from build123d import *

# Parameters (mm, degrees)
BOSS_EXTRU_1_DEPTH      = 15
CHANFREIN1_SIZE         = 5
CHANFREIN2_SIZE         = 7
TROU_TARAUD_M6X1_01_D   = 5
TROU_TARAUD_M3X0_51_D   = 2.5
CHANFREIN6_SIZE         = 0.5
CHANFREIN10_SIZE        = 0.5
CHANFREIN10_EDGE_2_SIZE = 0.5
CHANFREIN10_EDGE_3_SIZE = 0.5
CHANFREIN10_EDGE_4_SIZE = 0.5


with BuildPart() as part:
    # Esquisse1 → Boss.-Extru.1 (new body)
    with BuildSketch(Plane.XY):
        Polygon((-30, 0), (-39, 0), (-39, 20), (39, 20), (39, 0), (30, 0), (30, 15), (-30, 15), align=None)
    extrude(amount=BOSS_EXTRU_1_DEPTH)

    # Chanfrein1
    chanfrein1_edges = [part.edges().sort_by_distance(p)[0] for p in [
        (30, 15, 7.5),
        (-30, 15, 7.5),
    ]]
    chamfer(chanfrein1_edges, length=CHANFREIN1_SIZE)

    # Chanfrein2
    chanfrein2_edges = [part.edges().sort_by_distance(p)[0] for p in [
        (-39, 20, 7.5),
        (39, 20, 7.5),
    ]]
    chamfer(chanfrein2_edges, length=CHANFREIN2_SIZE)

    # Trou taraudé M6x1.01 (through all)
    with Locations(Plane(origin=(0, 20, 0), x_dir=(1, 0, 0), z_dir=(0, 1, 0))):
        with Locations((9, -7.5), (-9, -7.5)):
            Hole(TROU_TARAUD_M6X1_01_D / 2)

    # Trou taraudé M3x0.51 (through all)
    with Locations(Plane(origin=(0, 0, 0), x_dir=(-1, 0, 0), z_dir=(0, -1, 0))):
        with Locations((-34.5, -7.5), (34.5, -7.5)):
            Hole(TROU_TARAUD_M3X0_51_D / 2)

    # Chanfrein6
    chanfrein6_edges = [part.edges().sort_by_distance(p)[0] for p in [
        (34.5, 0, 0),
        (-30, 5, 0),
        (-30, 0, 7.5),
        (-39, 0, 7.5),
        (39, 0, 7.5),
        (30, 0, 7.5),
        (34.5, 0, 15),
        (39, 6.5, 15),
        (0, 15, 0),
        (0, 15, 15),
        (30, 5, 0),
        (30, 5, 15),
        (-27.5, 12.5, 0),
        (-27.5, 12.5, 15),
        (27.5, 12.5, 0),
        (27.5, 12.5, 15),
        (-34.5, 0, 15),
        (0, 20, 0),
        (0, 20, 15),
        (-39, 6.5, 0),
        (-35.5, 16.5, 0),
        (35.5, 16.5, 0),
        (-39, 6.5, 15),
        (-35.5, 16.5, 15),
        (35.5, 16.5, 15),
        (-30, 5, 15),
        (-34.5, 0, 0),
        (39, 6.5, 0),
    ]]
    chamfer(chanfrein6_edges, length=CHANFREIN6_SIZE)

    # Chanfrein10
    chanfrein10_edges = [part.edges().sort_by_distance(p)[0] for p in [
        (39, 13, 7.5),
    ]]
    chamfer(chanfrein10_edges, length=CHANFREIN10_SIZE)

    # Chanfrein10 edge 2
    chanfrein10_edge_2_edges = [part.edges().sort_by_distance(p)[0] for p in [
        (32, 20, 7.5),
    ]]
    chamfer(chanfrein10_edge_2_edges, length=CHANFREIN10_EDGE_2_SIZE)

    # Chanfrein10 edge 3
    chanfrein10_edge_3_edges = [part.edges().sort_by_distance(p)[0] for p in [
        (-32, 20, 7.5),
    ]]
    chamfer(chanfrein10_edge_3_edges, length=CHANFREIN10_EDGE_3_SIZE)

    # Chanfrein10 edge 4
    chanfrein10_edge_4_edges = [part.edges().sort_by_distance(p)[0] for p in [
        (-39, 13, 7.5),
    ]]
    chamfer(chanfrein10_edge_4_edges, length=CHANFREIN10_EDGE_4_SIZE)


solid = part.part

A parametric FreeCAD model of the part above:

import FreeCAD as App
import Part
import Sketcher
from FreeCAD import Vector
Q = App.Units.Quantity


def edges_at(feature, points):
    """Names of the edges that pass closest to the given points."""
    edges = feature.Shape.Edges
    near = lambda p: min(range(len(edges)), key=lambda i: edges[i].distToShape(Part.Vertex(*p))[0])
    return sorted({f"Edge{near(p) + 1}" for p in points})


def add_polygon(sketch, points):
    """Adds a closed chain of lines whose ends are joined by coincident constraints."""
    first, n = sketch.GeometryCount, len(points)
    for a, b in zip(points, points[1:] + points[:1]):
        sketch.addGeometry(Part.LineSegment(App.Vector(*a, 0), App.Vector(*b, 0)), False)
    for i in range(n):
        sketch.addConstraint(Sketcher.Constraint("Coincident", first + i, 2, first + (i + 1) % n, 1))

doc = App.newDocument("Part")
body = doc.addObject("PartDesign::Body", "Body")

# Sketch on XY plane
sketch1 = doc.addObject("Sketcher::SketchObject", "Sketch")
body.addObject(sketch1)
sketch1.AttachmentSupport = (doc.XY_Plane, [""])
sketch1.MapMode = "FlatFace"
add_polygon(sketch1, [(-39, 0), (-30, 0), (-30, 15), (30, 15), (30, 0), (39, 0), (39, 20), (-39, 20)])  # lines 0-7
sketch1.addConstraint([
    Sketcher.Constraint("Horizontal", 0),
    Sketcher.Constraint("Vertical", 1),
    Sketcher.Constraint("Horizontal", 2),
    Sketcher.Constraint("Vertical", 3),
    Sketcher.Constraint("Horizontal", 4),
    Sketcher.Constraint("Vertical", 5),
    Sketcher.Constraint("Horizontal", 6),
    Sketcher.Constraint("Vertical", 7),
    Sketcher.Constraint("Symmetric", 0, 2, 3, 2, -1, 1),
    Sketcher.Constraint("Symmetric", 4, 2, 7, 2, -2),
    Sketcher.Constraint("DistanceX", 0, 1, 0, 2, Q("9 mm")),
    Sketcher.Constraint("DistanceX", 2, 1, 2, 2, Q("60 mm")),
    Sketcher.Constraint("DistanceY", 1, 1, 1, 2, Q("15 mm")),
    Sketcher.Constraint("DistanceY", 5, 1, 5, 2, Q("20 mm")),
])
pad1 = doc.addObject("PartDesign::Pad", "Pad")
body.addObject(pad1)
pad1.Profile = sketch1
pad1.Length = 15
doc.recompute()

chamfer = doc.addObject("PartDesign::Chamfer", "Chamfer")
body.addObject(chamfer)
chamfer.Base = (pad1, edges_at(pad1, [(30, 15, 7.5), (-30, 15, 7.5)]))
chamfer.Size = 5
doc.recompute()

chamfer2 = doc.addObject("PartDesign::Chamfer", "Chamfer001")
body.addObject(chamfer2)
chamfer2.Base = (chamfer, edges_at(chamfer, [(-39, 20, 7.5), (39, 20, 7.5)]))
chamfer2.Size = 7

# Sketch on XZ plane
sketch2 = doc.addObject("Sketcher::SketchObject", "Sketch001")
body.addObject(sketch2)
sketch2.AttachmentSupport = (doc.XZ_Plane, [""])
sketch2.MapMode = "FlatFace"
sketch2.AttachmentOffset = App.Placement(Vector(0, 0, -20), App.Rotation())
sketch2.addGeometry([
    Part.Circle(Vector(9, 7.5, 0), Vector(0, 0, 1), 2.5),
    Part.Circle(Vector(-9, 7.5, 0), Vector(0, 0, 1), 2.5),
], False)
sketch2.addConstraint([
    Sketcher.Constraint("Equal", 0, 1),
    Sketcher.Constraint("Symmetric", 0, 3, 1, 3, -2),
    Sketcher.Constraint("Diameter", 0, Q("5 mm")),
    Sketcher.Constraint("DistanceX", -1, 1, 0, 3, Q("9 mm")),
    Sketcher.Constraint("DistanceY", -1, 1, 0, 3, Q("7.5 mm")),
])
doc.recompute()
hole = doc.addObject("PartDesign::Hole", "Hole")
body.addObject(hole)
hole.Profile = sketch2
hole.ThreadType = "None"
hole.Diameter = 5
hole.DepthType = "ThroughAll"
hole.Reversed = True

# Sketch on XZ plane
sketch3 = doc.addObject("Sketcher::SketchObject", "Sketch002")
body.addObject(sketch3)
sketch3.AttachmentSupport = (doc.XZ_Plane, [""])
sketch3.MapMode = "FlatFace"
sketch3.addGeometry([
    Part.Circle(Vector(34.5, 7.5, 0), Vector(0, 0, 1), 1.25),
    Part.Circle(Vector(-34.5, 7.5, 0), Vector(0, 0, 1), 1.25),
], False)
sketch3.addConstraint([
    Sketcher.Constraint("Equal", 0, 1),
    Sketcher.Constraint("Symmetric", 0, 3, 1, 3, -2),
    Sketcher.Constraint("Diameter", 0, Q("2.5 mm")),
    Sketcher.Constraint("DistanceX", 1, 3, 0, 3, Q("69 mm")),
    Sketcher.Constraint("DistanceY", -1, 1, 0, 3, Q("7.5 mm")),
])
doc.recompute()
hole2 = doc.addObject("PartDesign::Hole", "Hole001")
body.addObject(hole2)
hole2.Profile = sketch3
hole2.ThreadType = "None"
hole2.Diameter = 2.5
hole2.DepthType = "ThroughAll"
doc.recompute()

chamfer3 = doc.addObject("PartDesign::Chamfer", "Chamfer002")
body.addObject(chamfer3)
chamfer3.Base = (hole2, edges_at(hole2, [
    (34.5, 0, 0),
    (-30, 5, 0),
    (-30, 0, 7.5),
    (-39, 0, 7.5),
    (39, 0, 7.5),
    (30, 0, 7.5),
    (34.5, 0, 15),
    (39, 6.5, 15),
    (0, 15, 0),
    (0, 15, 15),
    (30, 5, 0),
    (30, 5, 15),
    (-27.5, 12.5, 0),
    (-27.5, 12.5, 15),
    (27.5, 12.5, 0),
    (27.5, 12.5, 15),
    (-34.5, 0, 15),
    (0, 20, 0),
    (0, 20, 15),
    (-39, 6.5, 0),
    (-35.5, 16.5, 0),
    (35.5, 16.5, 0),
    (-39, 6.5, 15),
    (-35.5, 16.5, 15),
    (35.5, 16.5, 15),
    (-30, 5, 15),
    (-34.5, 0, 0),
    (39, 6.5, 0),
]))
chamfer3.Size = 0.5
doc.recompute()

chamfer4 = doc.addObject("PartDesign::Chamfer", "Chamfer003")
body.addObject(chamfer4)
chamfer4.Base = (chamfer3, edges_at(chamfer3, [(39, 13, 7.5)]))
chamfer4.Size = 0.5
doc.recompute()

chamfer5 = doc.addObject("PartDesign::Chamfer", "Chamfer004")
body.addObject(chamfer5)
chamfer5.Base = (chamfer4, edges_at(chamfer4, [(32, 20, 7.5)]))
chamfer5.Size = 0.5
doc.recompute()

chamfer6 = doc.addObject("PartDesign::Chamfer", "Chamfer005")
body.addObject(chamfer6)
chamfer6.Base = (chamfer5, edges_at(chamfer5, [(-32, 20, 7.5)]))
chamfer6.Size = 0.5
doc.recompute()

chamfer7 = doc.addObject("PartDesign::Chamfer", "Chamfer006")
body.addObject(chamfer7)
chamfer7.Base = (chamfer6, edges_at(chamfer6, [(-39, 13, 7.5)]))
chamfer7.Size = 0.5

doc.recompute()
